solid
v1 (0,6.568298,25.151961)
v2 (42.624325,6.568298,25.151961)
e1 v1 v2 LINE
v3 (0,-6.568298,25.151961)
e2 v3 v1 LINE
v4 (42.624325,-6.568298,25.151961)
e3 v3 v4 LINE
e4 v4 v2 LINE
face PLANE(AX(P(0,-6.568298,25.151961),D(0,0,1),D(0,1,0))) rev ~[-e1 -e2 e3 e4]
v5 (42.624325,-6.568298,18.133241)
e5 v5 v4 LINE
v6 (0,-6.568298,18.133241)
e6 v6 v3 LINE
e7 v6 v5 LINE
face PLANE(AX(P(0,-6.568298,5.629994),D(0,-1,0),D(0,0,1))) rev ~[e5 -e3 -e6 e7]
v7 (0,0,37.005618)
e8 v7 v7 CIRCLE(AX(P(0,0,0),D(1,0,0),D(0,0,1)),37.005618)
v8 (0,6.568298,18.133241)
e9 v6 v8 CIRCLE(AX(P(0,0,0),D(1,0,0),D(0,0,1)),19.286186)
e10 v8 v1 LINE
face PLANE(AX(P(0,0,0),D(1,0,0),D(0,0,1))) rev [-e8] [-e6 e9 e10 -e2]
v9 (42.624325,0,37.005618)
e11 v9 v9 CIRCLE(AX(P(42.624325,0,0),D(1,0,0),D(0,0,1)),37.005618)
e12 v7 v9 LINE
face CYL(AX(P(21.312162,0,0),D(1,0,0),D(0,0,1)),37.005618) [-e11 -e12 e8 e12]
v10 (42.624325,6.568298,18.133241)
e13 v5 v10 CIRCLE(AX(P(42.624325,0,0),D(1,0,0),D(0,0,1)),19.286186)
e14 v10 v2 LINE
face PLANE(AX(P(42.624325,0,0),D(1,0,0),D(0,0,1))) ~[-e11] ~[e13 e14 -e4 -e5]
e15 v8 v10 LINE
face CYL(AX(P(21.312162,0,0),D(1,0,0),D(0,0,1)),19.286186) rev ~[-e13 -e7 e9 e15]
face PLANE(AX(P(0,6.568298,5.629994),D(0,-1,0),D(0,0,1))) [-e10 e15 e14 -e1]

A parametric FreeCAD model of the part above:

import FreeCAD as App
import Part
import Sketcher
Q = App.Units.Quantity

doc = App.newDocument("Part")
body = doc.addObject("PartDesign::Body", "Body")

sketch1 = body.newObject("Sketcher::SketchObject", "Sketch")
sketch1.AttachmentSupport = (doc.getObject("XZ_Plane"), [""])
sketch1.MapMode = "FlatFace"
sketch1.addGeometry([
    Part.LineSegment(App.Vector(0, 37.005618, 0), App.Vector(0, 19.286186, 0)),
    Part.LineSegment(App.Vector(0, 19.286186, 0), App.Vector(42.624325, 19.286186, 0)),
    Part.LineSegment(App.Vector(42.624325, 19.286186, 0), App.Vector(42.624325, 37.005618, 0)),
    Part.LineSegment(App.Vector(42.624325, 37.005618, 0), App.Vector(0, 37.005618, 0)),
], False)
sketch1.addConstraint([
    Sketcher.Constraint("Coincident", 0, 2, 1, 1),
    Sketcher.Constraint("Coincident", 1, 2, 2, 1),
    Sketcher.Constraint("Coincident", 2, 2, 3, 1),
    Sketcher.Constraint("Coincident", 3, 2, 0, 1),
    Sketcher.Constraint("Vertical", 0),
    Sketcher.Constraint("Horizontal", 1),
    Sketcher.Constraint("Vertical", 2),
    Sketcher.Constraint("Horizontal", 3),
    Sketcher.Constraint("PointOnObject", 0, 2, -2),
    Sketcher.Constraint("DistanceX", 1, 1, 1, 2, Q("42.624325 mm")),
    Sketcher.Constraint("DistanceY", 0, 2, 0, 1, Q("17.719433 mm")),
    Sketcher.Constraint("DistanceY", -1, 1, 2, 2, Q("37.005618 mm")),
])
revolution = body.newObject("PartDesign::Revolution", "Revolution")
revolution.Profile = sketch1
revolution.ReferenceAxis = (sketch1, ["H_Axis"])
revolution.Angle = 360

sketch2 = body.newObject("Sketcher::SketchObject", "Sketch001")
sketch2.AttachmentSupport = (doc.getObject("YZ_Plane"), [""])
sketch2.MapMode = "FlatFace"
sketch2.addGeometry([
    Part.LineSegment(App.Vector(-6.568298, 25.151961, 0), App.Vector(-6.568298, 5.629994, 0)),
    Part.LineSegment(App.Vector(-6.568298, 5.629994, 0), App.Vector(6.568298, 5.629994, 0)),
    Part.LineSegment(App.Vector(6.568298, 5.629994, 0), App.Vector(6.568298, 25.151961, 0)),
    Part.LineSegment(App.Vector(6.568298, 25.151961, 0), App.Vector(-6.568298, 25.151961, 0)),
], False)
sketch2.addConstraint([
    Sketcher.Constraint("Coincident", 0, 2, 1, 1),
    Sketcher.Constraint("Coincident", 1, 2, 2, 1),
    Sketcher.Constraint("Coincident", 2, 2, 3, 1),
    Sketcher.Constraint("Coincident", 3, 2, 0, 1),
    Sketcher.Constraint("Vertical", 0),
    Sketcher.Constraint("Horizontal", 1),
    Sketcher.Constraint("Vertical", 2),
    Sketcher.Constraint("Horizontal", 3),
    Sketcher.Constraint("DistanceX", 1, 1, 1, 2, Q("13.136595 mm")),
    Sketcher.Constraint("DistanceY", 0, 2, 0, 1, Q("19.521967 mm")),
    Sketcher.Constraint("DistanceY", -1, 1, 2, 2, Q("25.151961 mm")),
    Sketcher.Constraint("DistanceX", 0, 2, -1, 1, Q("6.568298 mm")),
])
pocket1 = body.newObject("PartDesign::Pocket", "Pocket")
pocket1.Profile = sketch2
pocket1.Length = 78.154948
pocket1.Reversed = True

doc.recompute()
